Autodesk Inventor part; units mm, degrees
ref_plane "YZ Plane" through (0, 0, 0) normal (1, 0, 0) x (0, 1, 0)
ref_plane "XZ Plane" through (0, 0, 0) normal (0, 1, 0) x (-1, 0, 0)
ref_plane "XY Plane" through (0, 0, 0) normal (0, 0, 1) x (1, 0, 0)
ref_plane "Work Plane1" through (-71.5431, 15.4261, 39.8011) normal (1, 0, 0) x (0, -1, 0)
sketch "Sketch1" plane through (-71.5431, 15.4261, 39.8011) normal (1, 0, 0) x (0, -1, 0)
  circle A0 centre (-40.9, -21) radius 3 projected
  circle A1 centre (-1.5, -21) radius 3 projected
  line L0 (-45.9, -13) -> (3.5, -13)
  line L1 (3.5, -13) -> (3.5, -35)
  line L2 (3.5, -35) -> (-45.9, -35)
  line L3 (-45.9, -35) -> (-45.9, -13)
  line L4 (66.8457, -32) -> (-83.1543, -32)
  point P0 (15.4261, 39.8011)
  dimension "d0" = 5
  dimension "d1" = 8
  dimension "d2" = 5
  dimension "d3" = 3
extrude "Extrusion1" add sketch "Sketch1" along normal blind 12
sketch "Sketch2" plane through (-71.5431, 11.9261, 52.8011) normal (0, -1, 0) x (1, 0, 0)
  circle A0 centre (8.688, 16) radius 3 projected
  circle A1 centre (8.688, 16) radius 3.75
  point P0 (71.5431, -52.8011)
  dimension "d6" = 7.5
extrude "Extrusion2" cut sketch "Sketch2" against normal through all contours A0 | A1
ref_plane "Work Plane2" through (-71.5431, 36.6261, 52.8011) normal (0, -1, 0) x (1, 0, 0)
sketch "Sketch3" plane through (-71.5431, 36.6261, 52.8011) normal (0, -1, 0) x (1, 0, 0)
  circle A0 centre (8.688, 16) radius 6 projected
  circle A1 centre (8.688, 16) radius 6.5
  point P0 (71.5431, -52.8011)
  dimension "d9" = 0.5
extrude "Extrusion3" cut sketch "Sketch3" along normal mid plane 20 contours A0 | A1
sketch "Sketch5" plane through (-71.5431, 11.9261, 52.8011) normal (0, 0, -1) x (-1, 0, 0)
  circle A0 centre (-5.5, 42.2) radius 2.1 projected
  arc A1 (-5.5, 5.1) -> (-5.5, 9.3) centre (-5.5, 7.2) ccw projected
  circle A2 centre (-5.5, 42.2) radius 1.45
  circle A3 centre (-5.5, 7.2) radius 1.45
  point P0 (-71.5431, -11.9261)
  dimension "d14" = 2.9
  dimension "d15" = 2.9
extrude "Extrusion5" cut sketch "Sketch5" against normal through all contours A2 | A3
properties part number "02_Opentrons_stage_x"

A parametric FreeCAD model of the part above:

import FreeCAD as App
import Part
import Sketcher
Q = App.Units.Quantity


def add_polygon(sketch, points):
    """Adds a closed chain of lines whose ends are joined by coincident constraints."""
    first, n = sketch.GeometryCount, len(points)
    for a, b in zip(points, points[1:] + points[:1]):
        sketch.addGeometry(Part.LineSegment(App.Vector(*a, 0), App.Vector(*b, 0)), False)
    for i in range(n):
        sketch.addConstraint(Sketcher.Constraint("Coincident", first + i, 2, first + (i + 1) % n, 1))

doc = App.newDocument("Part")
body = doc.addObject("PartDesign::Body", "Body")

# Sketch on YZ plane
sketch1 = doc.addObject("Sketcher::SketchObject", "Sketch")
body.addObject(sketch1)
sketch1.AttachmentSupport = (doc.YZ_Plane, [""])
sketch1.MapMode = "FlatFace"
sketch1.AttachmentOffset = App.Placement(App.Vector(0, 0, -71.5431), App.Rotation())
add_polygon(sketch1, [(11.9, 52.8), (61.3, 52.8), (61.3, 74.8), (11.9, 74.8)])  # lines 0-3
sketch1.addGeometry(Part.Circle(App.Vector(56.3, 60.8, 0), App.Vector(0, 0, 1), 3), False)  # 4
sketch1.addGeometry(Part.Circle(App.Vector(16.9, 60.8, 0), App.Vector(0, 0, 1), 3), False)  # 5
sketch1.addConstraint([
    Sketcher.Constraint("Horizontal", 0),
    Sketcher.Constraint("Vertical", 1),
    Sketcher.Constraint("Horizontal", 2),
    Sketcher.Constraint("Vertical", 3),
    Sketcher.Constraint("Equal", 4, 5),
    Sketcher.Constraint("Horizontal", 4, 3, 5, 3),
    Sketcher.Constraint("Diameter", 4, Q("6 mm")),
    Sketcher.Constraint("DistanceX", 4, 3, 0, 2, Q("5 mm")),
    Sketcher.Constraint("DistanceY", 0, 2, 4, 3, Q("8 mm")),
    Sketcher.Constraint("DistanceX", 2, 2, 5, 3, Q("5 mm")),
    Sketcher.Constraint("DistanceY", 1, 1, 1, 2, Q("22 mm")),
    Sketcher.Constraint("DistanceX", 0, 1, 0, 2, Q("49.4 mm")),
    Sketcher.Constraint("DistanceX", -1, 1, 4, 3, Q("56.326 mm")),
    Sketcher.Constraint("DistanceY", -1, 1, 4, 3, Q("60.801 mm")),
])
pad1 = doc.addObject("PartDesign::Pad", "Pad")
body.addObject(pad1)
pad1.Profile = sketch1
pad1.Length = 12

# Sketch on XZ plane
sketch2 = doc.addObject("Sketcher::SketchObject", "Sketch001")
body.addObject(sketch2)
sketch2.AttachmentSupport = (doc.XZ_Plane, [""])
sketch2.MapMode = "FlatFace"
sketch2.AttachmentOffset = App.Placement(App.Vector(0, 0, -11.9261), App.Rotation())
sketch2.addGeometry(Part.Circle(App.Vector(-62.9, 68.8, 0), App.Vector(0, 0, 1), 3.8), False)
sketch2.addConstraint([
    Sketcher.Constraint("Diameter", 0, Q("7.5 mm")),
    Sketcher.Constraint("DistanceX", 0, 3, -1, 1, Q("62.855 mm")),
    Sketcher.Constraint("DistanceY", -1, 1, 0, 3, Q("68.801 mm")),
])
pocket1 = doc.addObject("PartDesign::Pocket", "Pocket")
body.addObject(pocket1)
pocket1.Profile = sketch2
pocket1.Type = "ThroughAll"

# Sketch on XZ plane
sketch3 = doc.addObject("Sketcher::SketchObject", "Sketch002")
body.addObject(sketch3)
sketch3.AttachmentSupport = (doc.XZ_Plane, [""])
sketch3.MapMode = "FlatFace"
sketch3.AttachmentOffset = App.Placement(App.Vector(0, 0, -36.6261), App.Rotation())
sketch3.addGeometry(Part.Circle(App.Vector(-63, 69, 0), App.Vector(0, 0, 1), 6), False)
sketch3.addConstraint([
    Sketcher.Constraint("Diameter", 0, Q("13 mm")),
    Sketcher.Constraint("DistanceX", 0, 3, -1, 1, Q("62.855 mm")),
    Sketcher.Constraint("DistanceY", -1, 1, 0, 3, Q("68.801 mm")),
])
pocket2 = doc.addObject("PartDesign::Pocket", "Pocket001")
body.addObject(pocket2)
pocket2.Profile = sketch3
pocket2.Length = 20
pocket2.Midplane = True

# Sketch on XY plane
sketch4 = doc.addObject("Sketcher::SketchObject", "Sketch003")
body.addObject(sketch4)
sketch4.AttachmentSupport = (doc.XY_Plane, [""])
sketch4.MapMode = "FlatFace"
sketch4.AttachmentOffset = App.Placement(App.Vector(0, 0, 52.8011), App.Rotation())
sketch4.addGeometry([
    Part.Circle(App.Vector(-66, 54.1, 0), App.Vector(0, 0, 1), 1.4),
    Part.Circle(App.Vector(-66, 19.1, 0), App.Vector(0, 0, 1), 1.4),
], False)
sketch4.addConstraint([
    Sketcher.Constraint("Equal", 0, 1),
    Sketcher.Constraint("Vertical", 0, 3, 1, 3),
    Sketcher.Constraint("Diameter", 0, Q("2.9 mm")),
    Sketcher.Constraint("DistanceY", 1, 3, 0, 3, Q("35 mm")),
    Sketcher.Constraint("DistanceX", 0, 3, -1, 1, Q("66.043 mm")),
    Sketcher.Constraint("DistanceY", -1, 1, 0, 3, Q("54.126 mm")),
])
pocket3 = doc.addObject("PartDesign::Pocket", "Pocket002")
body.addObject(pocket3)
pocket3.Profile = sketch4
pocket3.Type = "ThroughAll"
pocket3.Reversed = True

doc.recompute()
